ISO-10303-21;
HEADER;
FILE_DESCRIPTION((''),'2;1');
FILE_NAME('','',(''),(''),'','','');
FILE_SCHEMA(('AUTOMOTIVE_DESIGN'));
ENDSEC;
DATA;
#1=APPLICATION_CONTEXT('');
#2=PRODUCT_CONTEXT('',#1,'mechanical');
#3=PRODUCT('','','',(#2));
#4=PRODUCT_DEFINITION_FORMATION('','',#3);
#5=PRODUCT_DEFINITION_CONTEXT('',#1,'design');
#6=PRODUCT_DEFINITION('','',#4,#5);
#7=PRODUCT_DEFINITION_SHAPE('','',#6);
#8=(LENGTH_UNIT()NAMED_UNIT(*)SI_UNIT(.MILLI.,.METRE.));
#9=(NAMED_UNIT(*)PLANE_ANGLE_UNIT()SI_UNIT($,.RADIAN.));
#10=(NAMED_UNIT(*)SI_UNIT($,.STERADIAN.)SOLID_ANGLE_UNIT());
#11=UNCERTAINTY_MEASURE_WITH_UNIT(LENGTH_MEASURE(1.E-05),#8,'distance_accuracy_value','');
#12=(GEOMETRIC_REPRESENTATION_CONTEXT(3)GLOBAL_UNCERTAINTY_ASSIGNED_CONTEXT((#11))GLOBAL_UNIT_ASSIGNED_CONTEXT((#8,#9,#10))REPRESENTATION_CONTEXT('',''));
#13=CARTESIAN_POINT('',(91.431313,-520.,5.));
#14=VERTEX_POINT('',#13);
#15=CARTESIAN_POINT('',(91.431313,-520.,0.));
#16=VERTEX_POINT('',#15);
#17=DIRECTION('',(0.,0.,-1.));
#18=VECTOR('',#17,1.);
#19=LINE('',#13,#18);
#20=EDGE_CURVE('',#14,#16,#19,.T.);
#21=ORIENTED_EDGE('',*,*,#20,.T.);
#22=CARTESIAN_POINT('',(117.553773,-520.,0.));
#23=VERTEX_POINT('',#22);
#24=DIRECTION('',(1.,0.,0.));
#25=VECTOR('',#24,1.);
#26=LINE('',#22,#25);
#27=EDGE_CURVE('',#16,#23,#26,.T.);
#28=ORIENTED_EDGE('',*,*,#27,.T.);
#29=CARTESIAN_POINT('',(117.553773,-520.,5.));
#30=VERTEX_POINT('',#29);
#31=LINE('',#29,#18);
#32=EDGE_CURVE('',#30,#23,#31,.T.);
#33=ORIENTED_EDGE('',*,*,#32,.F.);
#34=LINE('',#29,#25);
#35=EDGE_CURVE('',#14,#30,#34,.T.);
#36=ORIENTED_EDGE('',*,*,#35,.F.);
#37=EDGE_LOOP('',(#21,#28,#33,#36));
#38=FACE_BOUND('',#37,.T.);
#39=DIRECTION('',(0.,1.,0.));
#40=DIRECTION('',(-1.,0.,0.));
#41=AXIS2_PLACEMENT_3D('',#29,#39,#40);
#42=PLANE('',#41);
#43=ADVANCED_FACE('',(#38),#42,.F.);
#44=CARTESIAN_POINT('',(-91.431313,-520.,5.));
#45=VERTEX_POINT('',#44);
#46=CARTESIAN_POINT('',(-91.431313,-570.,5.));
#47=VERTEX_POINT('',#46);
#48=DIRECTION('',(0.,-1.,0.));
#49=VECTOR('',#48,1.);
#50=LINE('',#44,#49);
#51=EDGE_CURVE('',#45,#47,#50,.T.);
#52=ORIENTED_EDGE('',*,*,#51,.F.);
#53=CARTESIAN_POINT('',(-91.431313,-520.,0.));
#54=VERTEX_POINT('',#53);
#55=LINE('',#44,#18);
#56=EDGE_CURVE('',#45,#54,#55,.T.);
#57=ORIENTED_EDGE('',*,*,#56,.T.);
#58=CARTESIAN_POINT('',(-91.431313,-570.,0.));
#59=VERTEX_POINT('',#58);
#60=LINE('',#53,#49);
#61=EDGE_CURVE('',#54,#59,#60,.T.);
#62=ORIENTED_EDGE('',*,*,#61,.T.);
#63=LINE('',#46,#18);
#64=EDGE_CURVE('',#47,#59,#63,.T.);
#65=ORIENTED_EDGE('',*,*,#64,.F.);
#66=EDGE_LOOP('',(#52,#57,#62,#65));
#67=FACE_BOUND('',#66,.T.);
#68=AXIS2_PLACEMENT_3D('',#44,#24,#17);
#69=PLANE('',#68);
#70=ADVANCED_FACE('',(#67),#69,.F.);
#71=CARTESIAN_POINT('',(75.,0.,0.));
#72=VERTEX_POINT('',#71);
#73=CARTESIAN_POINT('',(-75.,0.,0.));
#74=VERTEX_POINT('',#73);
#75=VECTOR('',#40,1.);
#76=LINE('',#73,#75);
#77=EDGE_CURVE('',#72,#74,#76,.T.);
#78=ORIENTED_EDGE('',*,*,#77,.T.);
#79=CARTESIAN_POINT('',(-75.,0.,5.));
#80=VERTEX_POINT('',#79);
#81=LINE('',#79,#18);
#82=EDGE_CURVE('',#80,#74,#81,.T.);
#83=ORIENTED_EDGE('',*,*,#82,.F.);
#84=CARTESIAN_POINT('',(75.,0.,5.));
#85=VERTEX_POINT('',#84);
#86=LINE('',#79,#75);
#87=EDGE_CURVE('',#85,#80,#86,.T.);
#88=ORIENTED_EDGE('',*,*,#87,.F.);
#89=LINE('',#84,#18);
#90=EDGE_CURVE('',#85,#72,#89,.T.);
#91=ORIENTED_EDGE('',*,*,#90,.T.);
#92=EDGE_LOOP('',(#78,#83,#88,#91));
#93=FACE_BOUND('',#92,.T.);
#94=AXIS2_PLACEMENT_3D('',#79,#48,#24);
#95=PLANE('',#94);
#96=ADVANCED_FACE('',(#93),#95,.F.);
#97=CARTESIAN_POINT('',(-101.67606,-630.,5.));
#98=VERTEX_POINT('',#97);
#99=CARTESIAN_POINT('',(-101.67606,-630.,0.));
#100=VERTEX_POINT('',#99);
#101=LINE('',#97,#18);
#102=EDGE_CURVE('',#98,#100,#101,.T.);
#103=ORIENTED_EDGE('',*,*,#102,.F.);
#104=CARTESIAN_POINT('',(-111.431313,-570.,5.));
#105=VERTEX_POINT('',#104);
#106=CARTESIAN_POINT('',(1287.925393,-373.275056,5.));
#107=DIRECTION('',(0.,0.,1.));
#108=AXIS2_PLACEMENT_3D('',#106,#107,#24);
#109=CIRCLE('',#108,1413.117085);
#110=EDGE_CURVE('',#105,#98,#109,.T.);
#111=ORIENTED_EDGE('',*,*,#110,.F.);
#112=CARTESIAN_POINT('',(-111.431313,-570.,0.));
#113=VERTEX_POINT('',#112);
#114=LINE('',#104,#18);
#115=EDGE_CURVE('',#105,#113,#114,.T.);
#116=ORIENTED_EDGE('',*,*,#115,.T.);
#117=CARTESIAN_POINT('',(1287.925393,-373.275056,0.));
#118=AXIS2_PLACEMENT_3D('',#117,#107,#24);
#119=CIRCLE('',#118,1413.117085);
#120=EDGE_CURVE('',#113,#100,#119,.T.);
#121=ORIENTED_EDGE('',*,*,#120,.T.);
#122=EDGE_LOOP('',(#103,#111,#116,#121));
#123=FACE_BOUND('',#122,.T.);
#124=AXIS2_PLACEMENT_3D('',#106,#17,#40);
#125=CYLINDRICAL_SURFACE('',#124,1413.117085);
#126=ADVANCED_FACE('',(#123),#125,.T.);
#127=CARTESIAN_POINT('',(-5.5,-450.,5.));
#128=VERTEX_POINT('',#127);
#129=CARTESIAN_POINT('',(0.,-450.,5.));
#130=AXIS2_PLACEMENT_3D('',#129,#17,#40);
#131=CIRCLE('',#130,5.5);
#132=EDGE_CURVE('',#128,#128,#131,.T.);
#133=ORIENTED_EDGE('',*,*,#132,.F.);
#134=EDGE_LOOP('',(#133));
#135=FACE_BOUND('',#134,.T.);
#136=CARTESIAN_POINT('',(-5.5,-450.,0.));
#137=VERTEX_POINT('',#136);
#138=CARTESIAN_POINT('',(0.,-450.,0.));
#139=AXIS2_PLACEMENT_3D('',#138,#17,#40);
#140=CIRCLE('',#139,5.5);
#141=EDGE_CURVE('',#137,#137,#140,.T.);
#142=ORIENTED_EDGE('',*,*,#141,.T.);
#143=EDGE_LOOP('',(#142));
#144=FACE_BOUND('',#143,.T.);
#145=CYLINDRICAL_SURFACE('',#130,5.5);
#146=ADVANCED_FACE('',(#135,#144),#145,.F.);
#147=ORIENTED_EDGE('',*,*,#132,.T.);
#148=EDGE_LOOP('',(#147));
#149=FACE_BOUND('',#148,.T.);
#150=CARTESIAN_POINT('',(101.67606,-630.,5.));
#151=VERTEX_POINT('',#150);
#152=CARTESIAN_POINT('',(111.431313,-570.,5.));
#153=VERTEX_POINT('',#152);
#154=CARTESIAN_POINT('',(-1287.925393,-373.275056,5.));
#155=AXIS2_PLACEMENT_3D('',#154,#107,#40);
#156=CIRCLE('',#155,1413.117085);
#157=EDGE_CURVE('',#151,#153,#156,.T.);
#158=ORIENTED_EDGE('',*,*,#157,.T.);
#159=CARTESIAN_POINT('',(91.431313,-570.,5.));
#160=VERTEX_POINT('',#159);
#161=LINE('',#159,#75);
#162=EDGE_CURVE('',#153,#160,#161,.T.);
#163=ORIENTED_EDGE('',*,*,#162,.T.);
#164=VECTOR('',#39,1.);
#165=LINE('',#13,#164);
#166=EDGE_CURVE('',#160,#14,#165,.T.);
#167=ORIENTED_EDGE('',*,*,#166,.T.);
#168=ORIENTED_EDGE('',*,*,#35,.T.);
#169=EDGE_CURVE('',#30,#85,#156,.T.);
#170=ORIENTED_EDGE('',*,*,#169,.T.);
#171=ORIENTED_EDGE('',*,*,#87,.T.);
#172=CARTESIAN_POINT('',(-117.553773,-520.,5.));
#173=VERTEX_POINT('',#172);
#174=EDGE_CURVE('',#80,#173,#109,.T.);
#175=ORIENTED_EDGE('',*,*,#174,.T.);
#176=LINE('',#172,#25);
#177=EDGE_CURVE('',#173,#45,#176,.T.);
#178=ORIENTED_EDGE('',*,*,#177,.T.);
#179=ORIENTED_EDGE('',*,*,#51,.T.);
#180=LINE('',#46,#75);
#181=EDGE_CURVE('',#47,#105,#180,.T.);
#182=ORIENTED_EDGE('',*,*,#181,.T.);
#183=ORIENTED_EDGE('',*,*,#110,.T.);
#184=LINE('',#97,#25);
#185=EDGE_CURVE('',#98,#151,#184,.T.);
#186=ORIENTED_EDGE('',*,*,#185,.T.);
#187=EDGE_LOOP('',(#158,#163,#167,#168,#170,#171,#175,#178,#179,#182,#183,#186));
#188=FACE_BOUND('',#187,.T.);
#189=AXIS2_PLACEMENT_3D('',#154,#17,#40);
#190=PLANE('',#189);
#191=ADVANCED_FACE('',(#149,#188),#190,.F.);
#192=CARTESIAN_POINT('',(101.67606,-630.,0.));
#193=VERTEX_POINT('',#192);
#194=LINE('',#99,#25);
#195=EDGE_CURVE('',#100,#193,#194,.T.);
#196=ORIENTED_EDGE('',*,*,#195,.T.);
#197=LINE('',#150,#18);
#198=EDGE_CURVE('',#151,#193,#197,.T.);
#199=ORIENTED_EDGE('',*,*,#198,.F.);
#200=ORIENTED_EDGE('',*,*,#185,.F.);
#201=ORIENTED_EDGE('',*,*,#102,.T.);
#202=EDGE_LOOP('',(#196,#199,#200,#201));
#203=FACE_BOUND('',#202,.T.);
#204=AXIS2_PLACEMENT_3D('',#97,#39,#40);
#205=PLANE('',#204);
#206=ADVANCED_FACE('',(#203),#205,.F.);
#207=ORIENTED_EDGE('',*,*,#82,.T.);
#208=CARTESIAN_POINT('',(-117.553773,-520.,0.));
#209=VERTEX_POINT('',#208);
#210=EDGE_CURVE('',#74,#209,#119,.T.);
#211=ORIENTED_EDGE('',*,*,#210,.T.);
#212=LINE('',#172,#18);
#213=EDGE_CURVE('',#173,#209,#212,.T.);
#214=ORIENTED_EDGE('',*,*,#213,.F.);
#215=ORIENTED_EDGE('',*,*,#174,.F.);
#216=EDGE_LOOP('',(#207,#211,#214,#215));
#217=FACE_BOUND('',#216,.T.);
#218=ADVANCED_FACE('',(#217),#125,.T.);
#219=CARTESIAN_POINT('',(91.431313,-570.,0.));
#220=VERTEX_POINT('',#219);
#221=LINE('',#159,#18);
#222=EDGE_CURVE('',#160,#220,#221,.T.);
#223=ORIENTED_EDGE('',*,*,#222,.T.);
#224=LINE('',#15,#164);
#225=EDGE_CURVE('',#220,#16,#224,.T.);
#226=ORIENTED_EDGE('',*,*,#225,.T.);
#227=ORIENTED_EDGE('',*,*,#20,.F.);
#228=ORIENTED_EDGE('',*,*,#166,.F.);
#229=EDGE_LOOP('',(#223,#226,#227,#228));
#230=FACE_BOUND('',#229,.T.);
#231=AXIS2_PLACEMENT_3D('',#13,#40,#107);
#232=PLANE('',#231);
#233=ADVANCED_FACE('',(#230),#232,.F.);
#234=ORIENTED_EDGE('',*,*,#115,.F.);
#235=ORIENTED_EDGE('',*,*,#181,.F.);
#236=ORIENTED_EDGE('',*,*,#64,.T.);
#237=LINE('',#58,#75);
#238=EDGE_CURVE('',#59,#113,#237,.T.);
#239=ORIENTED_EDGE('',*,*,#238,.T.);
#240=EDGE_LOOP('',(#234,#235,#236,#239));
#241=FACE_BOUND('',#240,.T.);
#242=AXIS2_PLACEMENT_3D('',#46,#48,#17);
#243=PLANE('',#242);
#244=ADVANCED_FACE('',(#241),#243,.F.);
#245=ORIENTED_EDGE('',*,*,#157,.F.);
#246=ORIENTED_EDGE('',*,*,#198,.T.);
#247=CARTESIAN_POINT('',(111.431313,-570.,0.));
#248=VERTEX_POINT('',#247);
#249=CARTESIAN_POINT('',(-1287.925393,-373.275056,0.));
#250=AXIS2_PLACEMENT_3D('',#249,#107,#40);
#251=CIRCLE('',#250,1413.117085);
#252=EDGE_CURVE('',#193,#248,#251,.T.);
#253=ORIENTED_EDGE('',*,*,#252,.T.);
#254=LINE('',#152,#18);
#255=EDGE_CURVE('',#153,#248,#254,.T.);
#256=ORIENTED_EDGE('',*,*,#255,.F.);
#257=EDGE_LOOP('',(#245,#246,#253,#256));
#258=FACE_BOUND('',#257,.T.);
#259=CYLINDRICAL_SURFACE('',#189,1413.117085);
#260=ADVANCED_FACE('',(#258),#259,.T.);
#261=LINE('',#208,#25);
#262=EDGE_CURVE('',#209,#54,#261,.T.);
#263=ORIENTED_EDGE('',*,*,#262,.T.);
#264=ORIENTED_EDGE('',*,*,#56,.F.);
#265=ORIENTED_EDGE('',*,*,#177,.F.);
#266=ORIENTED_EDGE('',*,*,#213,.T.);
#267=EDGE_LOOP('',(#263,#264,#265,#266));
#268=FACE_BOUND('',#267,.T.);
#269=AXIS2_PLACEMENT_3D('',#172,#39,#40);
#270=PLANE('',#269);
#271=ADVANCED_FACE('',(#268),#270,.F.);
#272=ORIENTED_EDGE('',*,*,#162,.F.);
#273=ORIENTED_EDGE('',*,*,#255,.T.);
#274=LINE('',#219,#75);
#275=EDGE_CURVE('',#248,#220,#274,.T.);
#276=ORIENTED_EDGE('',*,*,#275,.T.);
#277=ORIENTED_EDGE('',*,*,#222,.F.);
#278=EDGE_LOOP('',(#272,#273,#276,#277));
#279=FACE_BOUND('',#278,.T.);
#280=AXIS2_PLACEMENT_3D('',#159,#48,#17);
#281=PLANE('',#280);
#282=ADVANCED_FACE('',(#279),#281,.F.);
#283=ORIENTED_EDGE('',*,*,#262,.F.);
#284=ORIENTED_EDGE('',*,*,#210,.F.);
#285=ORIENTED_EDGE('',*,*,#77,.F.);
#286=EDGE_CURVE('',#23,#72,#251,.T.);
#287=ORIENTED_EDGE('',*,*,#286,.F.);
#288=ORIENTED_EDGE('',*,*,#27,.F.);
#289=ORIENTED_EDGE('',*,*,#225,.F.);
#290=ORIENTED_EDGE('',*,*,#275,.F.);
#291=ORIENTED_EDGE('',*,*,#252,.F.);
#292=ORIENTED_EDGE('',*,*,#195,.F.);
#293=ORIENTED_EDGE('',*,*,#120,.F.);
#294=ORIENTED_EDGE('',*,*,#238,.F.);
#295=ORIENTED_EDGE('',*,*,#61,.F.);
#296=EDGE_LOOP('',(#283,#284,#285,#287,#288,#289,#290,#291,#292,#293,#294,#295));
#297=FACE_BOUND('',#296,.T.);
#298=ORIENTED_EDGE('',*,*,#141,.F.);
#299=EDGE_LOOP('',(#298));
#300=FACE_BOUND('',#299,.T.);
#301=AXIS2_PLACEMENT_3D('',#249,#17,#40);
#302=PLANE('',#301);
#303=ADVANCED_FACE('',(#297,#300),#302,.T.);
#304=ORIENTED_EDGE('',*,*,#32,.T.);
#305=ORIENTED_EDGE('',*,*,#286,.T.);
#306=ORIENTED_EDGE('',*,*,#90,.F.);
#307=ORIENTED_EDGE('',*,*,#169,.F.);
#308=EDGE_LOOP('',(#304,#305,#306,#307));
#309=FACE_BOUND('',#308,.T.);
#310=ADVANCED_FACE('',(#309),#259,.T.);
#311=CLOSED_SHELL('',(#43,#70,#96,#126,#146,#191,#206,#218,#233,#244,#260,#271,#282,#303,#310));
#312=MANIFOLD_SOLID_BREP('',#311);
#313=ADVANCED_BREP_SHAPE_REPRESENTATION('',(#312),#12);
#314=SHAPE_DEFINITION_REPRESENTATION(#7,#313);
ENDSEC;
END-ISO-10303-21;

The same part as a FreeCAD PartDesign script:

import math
import FreeCAD as App
import Part
import Sketcher
from FreeCAD import Vector
Q = App.Units.Quantity

doc = App.newDocument("Part")
body = doc.addObject("PartDesign::Body", "Body")

sketch1 = doc.addObject("Sketcher::SketchObject", "Sketch")
body.addObject(sketch1)
sketch1.AttachmentSupport = (doc.XY_Plane, [""])
sketch1.MapMode = "FlatFace"
sketch1.addGeometry([
    Part.LineSegment(Vector(75, 0, 0), Vector(-75, 0, 0)),
    Part.ArcOfCircle(Part.Circle(Vector(1288, -373, 0), Vector(0, 0, 1), 1413), math.radians(165), math.radians(196)),
    Part.LineSegment(Vector(-72, -756, 0), Vector(-5, -996, 0)),
    Part.ArcOfCircle(Part.Circle(Vector(0, -995, 0), Vector(0, 0, 1), 5), math.radians(-164), math.radians(-90)),
    Part.ArcOfCircle(Part.Circle(Vector(0, -995, 0), Vector(0, 0, 1), 5), math.radians(-90), math.radians(-16)),
    Part.LineSegment(Vector(5, -996, 0), Vector(72, -756, 0)),
    Part.ArcOfCircle(Part.Circle(Vector(-1288, -373, 0), Vector(0, 0, 1), 1413), math.radians(-16), math.radians(15)),
], False)
sketch1.addConstraint([
    Sketcher.Constraint("Coincident", 0, 2, 1, 1),
    Sketcher.Constraint("Tangent", 1, 2, 2, 1),
    Sketcher.Constraint("Tangent", 2, 2, 3, 1),
    Sketcher.Constraint("Tangent", 3, 2, 4, 1),
    Sketcher.Constraint("Tangent", 4, 2, 5, 1),
    Sketcher.Constraint("Tangent", 5, 2, 6, 1),
    Sketcher.Constraint("Coincident", 6, 2, 0, 1),
    Sketcher.Constraint("Horizontal", 0),
    Sketcher.Constraint("Equal", 3, 4),
    Sketcher.Constraint("Equal", 1, 6),
    Sketcher.Constraint("Symmetric", 1, 3, 6, 3, -2),
    Sketcher.Constraint("PointOnObject", 3, 3, -2),
    Sketcher.Constraint("PointOnObject", 0, 2, -1),
    Sketcher.Constraint("PointOnObject", 3, 2, -2),
    Sketcher.Constraint("Radius", 3, Q("5 mm")),
    Sketcher.Constraint("DistanceX", 0, 2, 0, 1, Q("150 mm")),
    Sketcher.Constraint("Distance", 2, Q("250 mm")),
    Sketcher.Constraint("DistanceY", 3, 3, -1, 1, Q("995 mm")),
    Sketcher.Constraint("Radius", 1, Q("1413.117085 mm")),
])
pad1 = doc.addObject("PartDesign::Pad", "Pad")
body.addObject(pad1)
pad1.Profile = sketch1
pad1.Length = 5

sketch2 = doc.addObject("Sketcher::SketchObject", "Sketch001")
body.addObject(sketch2)
sketch2.AttachmentSupport = (doc.XY_Plane, [""])
sketch2.MapMode = "FlatFace"
sketch2.addGeometry(Part.Circle(Vector(0, -450, 0), Vector(0, 0, 1), 6), False)
sketch2.addConstraint([
    Sketcher.Constraint("PointOnObject", 0, 3, -2),
    Sketcher.Constraint("Diameter", 0, Q("11 mm")),
    Sketcher.Constraint("DistanceY", 0, 3, -1, 1, Q("450 mm")),
])
pocket1 = doc.addObject("PartDesign::Pocket", "Pocket")
body.addObject(pocket1)
pocket1.Profile = sketch2
pocket1.Type = "ThroughAll"
pocket1.Reversed = True

sketch3 = doc.addObject("Sketcher::SketchObject", "Sketch002")
body.addObject(sketch3)
sketch3.AttachmentSupport = (doc.XY_Plane, [""])
sketch3.MapMode = "FlatFace"
sketch3.addGeometry([
    Part.LineSegment(Vector(91, -520, 0), Vector(118, -520, 0)),
    Part.ArcOfCircle(Part.Circle(Vector(91, -542, 0), Vector(0, 0, 1), 34), math.radians(-54), math.radians(40)),
    Part.LineSegment(Vector(111, -570, 0), Vector(91, -570, 0)),
    Part.LineSegment(Vector(91, -570, 0), Vector(91, -520, 0)),
    Part.LineSegment(Vector(-118, -520, 0), Vector(-91, -520, 0)),
    Part.LineSegment(Vector(-91, -520, 0), Vector(-91, -570, 0)),
    Part.LineSegment(Vector(-91, -570, 0), Vector(-111, -570, 0)),
    Part.ArcOfCircle(Part.Circle(Vector(-91, -542, 0), Vector(0, 0, 1), 34), math.radians(140), math.radians(234)),
    Part.LineSegment(Vector(102, -630, 0), Vector(102, -1040, 0)),
    Part.LineSegment(Vector(102, -1040, 0), Vector(-102, -1040, 0)),
    Part.LineSegment(Vector(-102, -1040, 0), Vector(-102, -630, 0)),
    Part.LineSegment(Vector(-102, -630, 0), Vector(102, -630, 0)),
], False)
sketch3.addConstraint([
    Sketcher.Constraint("Coincident", 0, 2, 1, 2),
    Sketcher.Constraint("Coincident", 1, 1, 2, 1),
    Sketcher.Constraint("Coincident", 2, 2, 3, 1),
    Sketcher.Constraint("Coincident", 3, 2, 0, 1),
    Sketcher.Constraint("Coincident", 4, 2, 5, 1),
    Sketcher.Constraint("Coincident", 5, 2, 6, 1),
    Sketcher.Constraint("Coincident", 6, 2, 7, 2),
    Sketcher.Constraint("Coincident", 7, 1, 4, 1),
    Sketcher.Constraint("Coincident", 8, 2, 9, 1),
    Sketcher.Constraint("Coincident", 9, 2, 10, 1),
    Sketcher.Constraint("Coincident", 10, 2, 11, 1),
    Sketcher.Constraint("Coincident", 11, 2, 8, 1),
    Sketcher.Constraint("Horizontal", 0),
    Sketcher.Constraint("Horizontal", 2),
    Sketcher.Constraint("Vertical", 3),
    Sketcher.Constraint("Horizontal", 4),
    Sketcher.Constraint("Vertical", 5),
    Sketcher.Constraint("Horizontal", 6),
    Sketcher.Constraint("Vertical", 8),
    Sketcher.Constraint("Horizontal", 9),
    Sketcher.Constraint("Vertical", 10),
    Sketcher.Constraint("Horizontal", 11),
    Sketcher.Constraint("Equal", 1, 7),
    Sketcher.Constraint("Symmetric", 1, 3, 7, 3, -2),
    Sketcher.Constraint("Symmetric", 3, 2, 4, 2, -2),
    Sketcher.Constraint("Horizontal", 2, 2, 5, 2),
    Sketcher.Constraint("Vertical", 1, 3, 2, 2),
    Sketcher.Constraint("DistanceX", 2, 2, 2, 1, Q("20 mm")),
    Sketcher.Constraint("DistanceY", 3, 1, 3, 2, Q("50 mm")),
    Sketcher.Constraint("DistanceY", 0, 2, -1, 1, Q("520 mm")),
    Sketcher.Constraint("DistanceY", 10, 2, -1, 1, Q("630 mm")),
    Sketcher.Constraint("Radius", 1, Q("34.266098 mm")),
    Sketcher.Constraint("DistanceX", 9, 2, 9, 1, Q("203.35212 mm")),
    Sketcher.Constraint("DistanceY", 8, 2, 8, 1, Q("409.95839 mm")),
    Sketcher.Constraint("DistanceX", -1, 1, 8, 2, Q("101.67606 mm")),
    Sketcher.Constraint("DistanceX", -1, 1, 1, 3, Q("91.431313 mm")),
])
pocket2 = doc.addObject("PartDesign::Pocket", "Pocket001")
body.addObject(pocket2)
pocket2.Profile = sketch3
pocket2.Type = "ThroughAll"
pocket2.Reversed = True

doc.recompute()
